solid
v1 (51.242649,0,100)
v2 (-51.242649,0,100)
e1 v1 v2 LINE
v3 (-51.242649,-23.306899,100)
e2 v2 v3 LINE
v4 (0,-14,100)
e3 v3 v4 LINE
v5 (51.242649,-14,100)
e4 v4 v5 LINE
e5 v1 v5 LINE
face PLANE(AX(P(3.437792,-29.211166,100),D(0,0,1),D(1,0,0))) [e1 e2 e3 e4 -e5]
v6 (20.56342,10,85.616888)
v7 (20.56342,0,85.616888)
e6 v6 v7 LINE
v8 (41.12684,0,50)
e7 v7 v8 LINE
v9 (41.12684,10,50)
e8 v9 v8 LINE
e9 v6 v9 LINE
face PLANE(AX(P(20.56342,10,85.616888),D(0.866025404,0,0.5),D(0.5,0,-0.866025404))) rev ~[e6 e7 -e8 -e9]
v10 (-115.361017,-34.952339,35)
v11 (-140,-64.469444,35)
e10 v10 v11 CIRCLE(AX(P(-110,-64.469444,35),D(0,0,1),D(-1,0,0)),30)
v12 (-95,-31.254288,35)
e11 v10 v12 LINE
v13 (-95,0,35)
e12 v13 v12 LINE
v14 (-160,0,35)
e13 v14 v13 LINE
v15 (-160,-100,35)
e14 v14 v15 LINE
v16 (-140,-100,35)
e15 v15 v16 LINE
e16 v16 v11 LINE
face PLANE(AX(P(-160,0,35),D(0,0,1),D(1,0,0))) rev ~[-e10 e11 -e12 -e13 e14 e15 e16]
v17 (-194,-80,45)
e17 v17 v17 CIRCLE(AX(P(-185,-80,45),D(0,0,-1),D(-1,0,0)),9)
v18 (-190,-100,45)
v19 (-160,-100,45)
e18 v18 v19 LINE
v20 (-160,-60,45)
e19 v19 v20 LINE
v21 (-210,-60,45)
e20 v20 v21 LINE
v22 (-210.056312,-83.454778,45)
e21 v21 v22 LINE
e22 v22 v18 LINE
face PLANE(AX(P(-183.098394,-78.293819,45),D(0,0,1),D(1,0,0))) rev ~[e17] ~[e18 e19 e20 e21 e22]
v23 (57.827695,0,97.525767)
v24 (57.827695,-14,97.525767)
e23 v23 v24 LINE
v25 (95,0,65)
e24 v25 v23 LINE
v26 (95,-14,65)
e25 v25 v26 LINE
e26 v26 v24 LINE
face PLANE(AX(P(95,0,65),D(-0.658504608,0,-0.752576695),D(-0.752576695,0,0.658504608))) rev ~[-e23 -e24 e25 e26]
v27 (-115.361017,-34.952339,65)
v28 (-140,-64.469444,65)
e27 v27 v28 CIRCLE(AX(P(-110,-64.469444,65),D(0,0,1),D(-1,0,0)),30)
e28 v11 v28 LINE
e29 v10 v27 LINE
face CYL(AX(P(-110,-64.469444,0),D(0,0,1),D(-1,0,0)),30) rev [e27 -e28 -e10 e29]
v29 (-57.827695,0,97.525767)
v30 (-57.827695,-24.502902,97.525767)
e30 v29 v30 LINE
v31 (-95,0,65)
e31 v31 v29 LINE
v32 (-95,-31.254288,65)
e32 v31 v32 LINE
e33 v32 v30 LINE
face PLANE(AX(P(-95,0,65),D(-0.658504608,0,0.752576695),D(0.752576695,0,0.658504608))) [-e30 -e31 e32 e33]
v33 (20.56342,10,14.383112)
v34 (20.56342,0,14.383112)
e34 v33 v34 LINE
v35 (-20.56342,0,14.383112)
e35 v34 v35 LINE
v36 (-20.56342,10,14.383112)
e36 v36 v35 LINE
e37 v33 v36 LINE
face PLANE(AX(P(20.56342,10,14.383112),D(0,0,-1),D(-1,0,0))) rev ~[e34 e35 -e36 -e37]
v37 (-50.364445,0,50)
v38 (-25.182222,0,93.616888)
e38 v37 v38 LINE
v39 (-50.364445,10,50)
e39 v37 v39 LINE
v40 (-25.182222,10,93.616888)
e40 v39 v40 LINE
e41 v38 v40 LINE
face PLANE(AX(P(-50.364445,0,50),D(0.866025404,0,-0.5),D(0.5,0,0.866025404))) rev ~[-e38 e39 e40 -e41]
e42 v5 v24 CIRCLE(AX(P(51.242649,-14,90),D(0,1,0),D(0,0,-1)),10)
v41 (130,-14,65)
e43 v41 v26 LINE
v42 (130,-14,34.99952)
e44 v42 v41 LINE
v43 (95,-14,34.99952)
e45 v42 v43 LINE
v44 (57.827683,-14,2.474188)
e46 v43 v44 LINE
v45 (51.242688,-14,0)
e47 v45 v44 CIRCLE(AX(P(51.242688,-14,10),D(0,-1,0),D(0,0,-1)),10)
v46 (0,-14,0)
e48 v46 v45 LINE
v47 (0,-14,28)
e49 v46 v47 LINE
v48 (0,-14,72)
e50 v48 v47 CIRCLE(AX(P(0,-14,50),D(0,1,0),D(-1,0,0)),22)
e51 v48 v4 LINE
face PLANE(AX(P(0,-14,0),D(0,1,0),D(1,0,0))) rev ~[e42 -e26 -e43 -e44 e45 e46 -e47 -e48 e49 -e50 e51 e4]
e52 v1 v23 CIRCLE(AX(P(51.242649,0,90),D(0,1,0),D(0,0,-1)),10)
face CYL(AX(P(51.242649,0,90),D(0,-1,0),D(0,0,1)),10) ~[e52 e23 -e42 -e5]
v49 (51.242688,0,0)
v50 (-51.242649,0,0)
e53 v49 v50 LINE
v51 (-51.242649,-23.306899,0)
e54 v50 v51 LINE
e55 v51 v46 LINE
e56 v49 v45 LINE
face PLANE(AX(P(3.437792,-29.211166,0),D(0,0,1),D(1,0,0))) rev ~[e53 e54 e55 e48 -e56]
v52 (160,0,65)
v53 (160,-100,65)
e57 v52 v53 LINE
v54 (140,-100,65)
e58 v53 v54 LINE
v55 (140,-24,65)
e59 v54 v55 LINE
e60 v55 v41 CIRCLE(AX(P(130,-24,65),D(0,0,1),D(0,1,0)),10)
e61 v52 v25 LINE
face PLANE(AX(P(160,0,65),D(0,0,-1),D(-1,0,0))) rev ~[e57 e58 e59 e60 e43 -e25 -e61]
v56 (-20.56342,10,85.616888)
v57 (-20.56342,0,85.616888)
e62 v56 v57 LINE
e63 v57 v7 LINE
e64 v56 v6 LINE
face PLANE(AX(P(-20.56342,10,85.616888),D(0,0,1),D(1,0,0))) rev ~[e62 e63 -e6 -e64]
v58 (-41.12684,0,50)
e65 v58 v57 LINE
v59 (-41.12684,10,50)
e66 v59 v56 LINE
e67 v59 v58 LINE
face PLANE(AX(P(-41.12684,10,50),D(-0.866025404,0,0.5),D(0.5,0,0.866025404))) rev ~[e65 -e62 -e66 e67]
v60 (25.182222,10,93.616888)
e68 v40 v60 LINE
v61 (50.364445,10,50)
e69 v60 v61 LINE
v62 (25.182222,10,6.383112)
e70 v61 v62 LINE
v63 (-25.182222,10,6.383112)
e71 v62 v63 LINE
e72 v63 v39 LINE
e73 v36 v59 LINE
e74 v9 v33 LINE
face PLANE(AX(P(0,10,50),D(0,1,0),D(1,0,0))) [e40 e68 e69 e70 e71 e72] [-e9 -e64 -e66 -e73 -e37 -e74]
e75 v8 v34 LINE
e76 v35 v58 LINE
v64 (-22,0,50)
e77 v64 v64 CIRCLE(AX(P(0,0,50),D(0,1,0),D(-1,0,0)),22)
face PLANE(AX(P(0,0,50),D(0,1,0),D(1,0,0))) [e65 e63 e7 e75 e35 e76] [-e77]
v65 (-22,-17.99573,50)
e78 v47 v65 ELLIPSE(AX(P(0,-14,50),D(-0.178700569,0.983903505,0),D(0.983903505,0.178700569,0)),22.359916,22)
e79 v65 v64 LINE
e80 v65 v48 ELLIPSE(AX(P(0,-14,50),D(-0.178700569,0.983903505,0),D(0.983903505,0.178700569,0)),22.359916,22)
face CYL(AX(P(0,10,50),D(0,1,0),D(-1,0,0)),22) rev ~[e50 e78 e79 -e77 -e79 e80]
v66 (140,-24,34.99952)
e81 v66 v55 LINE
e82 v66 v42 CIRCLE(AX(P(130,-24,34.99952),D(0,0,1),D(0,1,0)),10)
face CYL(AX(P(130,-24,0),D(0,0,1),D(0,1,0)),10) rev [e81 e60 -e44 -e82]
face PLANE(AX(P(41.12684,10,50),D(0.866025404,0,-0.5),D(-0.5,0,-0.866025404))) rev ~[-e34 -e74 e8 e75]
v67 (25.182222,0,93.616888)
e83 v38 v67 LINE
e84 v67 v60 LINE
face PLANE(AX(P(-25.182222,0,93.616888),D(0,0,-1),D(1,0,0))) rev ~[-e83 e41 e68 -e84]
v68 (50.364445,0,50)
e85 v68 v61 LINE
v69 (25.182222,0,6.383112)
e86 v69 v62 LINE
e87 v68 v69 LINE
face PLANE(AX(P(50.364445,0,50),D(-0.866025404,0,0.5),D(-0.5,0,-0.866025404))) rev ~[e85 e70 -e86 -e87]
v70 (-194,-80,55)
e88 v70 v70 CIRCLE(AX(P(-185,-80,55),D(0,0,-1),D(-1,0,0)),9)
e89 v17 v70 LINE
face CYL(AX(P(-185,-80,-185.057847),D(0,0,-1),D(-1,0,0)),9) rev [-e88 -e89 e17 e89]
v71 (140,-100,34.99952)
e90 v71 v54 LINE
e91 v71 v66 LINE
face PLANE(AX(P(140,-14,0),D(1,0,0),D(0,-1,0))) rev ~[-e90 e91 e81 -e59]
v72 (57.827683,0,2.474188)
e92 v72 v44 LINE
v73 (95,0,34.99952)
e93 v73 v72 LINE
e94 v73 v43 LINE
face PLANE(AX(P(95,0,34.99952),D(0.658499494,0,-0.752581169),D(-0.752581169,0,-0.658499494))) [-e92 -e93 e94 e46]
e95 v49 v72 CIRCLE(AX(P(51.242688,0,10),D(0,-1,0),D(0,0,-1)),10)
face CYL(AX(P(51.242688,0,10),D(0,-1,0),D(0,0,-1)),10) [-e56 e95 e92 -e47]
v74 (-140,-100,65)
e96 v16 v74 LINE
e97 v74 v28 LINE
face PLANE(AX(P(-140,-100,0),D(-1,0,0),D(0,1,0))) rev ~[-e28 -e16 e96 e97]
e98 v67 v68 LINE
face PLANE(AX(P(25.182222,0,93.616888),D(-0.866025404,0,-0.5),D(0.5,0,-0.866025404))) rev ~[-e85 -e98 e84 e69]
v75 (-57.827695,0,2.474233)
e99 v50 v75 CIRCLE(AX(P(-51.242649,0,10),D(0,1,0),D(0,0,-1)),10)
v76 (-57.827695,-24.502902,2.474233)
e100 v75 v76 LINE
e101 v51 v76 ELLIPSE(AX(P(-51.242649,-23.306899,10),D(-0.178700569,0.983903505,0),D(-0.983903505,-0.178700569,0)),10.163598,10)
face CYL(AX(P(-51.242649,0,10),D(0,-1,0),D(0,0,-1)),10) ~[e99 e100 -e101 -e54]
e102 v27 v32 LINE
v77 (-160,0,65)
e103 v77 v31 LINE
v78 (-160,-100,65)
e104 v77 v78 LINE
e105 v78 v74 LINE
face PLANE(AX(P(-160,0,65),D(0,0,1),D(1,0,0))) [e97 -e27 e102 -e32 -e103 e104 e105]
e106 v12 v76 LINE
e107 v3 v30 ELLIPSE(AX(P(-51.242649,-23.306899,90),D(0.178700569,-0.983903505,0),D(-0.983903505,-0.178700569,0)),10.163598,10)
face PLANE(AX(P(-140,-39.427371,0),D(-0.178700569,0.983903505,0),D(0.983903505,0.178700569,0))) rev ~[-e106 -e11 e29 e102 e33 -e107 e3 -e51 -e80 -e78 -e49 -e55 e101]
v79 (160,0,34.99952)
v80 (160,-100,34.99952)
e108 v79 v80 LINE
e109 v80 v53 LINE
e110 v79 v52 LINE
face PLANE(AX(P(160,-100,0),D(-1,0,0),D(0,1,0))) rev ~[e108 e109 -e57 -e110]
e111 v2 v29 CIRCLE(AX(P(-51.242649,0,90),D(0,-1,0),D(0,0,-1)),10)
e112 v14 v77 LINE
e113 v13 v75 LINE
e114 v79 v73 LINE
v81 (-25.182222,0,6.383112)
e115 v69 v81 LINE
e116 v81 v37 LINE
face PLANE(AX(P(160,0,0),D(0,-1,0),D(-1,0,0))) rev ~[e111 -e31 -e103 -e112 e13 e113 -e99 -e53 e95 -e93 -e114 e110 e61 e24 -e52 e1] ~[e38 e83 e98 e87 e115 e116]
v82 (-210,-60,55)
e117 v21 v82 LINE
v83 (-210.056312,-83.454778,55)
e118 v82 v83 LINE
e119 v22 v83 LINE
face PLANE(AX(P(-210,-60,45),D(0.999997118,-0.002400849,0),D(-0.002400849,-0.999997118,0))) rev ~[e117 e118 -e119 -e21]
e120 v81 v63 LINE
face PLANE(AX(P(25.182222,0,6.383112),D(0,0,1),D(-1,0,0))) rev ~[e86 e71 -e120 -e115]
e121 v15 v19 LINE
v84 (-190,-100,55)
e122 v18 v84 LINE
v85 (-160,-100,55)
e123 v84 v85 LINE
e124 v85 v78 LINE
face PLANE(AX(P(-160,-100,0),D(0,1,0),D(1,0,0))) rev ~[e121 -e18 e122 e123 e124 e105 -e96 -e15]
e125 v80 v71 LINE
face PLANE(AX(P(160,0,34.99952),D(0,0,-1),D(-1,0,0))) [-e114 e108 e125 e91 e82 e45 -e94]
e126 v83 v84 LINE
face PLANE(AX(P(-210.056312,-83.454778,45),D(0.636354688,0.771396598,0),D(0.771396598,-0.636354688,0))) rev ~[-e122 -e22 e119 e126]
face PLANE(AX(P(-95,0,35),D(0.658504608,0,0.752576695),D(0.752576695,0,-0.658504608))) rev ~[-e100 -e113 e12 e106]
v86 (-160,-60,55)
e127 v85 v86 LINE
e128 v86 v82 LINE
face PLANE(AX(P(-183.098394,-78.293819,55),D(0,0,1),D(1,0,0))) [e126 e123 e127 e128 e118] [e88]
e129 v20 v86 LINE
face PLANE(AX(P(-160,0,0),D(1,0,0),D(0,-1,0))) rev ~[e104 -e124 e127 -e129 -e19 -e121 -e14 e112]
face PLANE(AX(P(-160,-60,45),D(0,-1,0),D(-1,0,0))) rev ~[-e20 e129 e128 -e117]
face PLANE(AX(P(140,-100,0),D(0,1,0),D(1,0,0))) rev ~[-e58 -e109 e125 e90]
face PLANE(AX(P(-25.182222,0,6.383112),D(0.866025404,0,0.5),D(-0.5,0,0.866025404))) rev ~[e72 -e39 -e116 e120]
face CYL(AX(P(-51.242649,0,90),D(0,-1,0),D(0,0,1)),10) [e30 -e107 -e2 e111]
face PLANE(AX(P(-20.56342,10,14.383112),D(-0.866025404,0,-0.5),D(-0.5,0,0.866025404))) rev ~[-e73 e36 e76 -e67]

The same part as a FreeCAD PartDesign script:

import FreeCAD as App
import Part
import Sketcher

V = App.Vector
Q = App.Units.Quantity


def edges_at(feature, points):
    """Names of the edges that pass closest to the given points."""
    edges = feature.Shape.Edges
    near = lambda p: min(range(len(edges)), key=lambda i: edges[i].distToShape(Part.Vertex(*p))[0])
    return sorted({f"Edge{near(p) + 1}" for p in points})

doc = App.newDocument("Part")
body = doc.addObject("PartDesign::Body", "Body")

sketch1 = body.newObject("Sketcher::SketchObject", "Sketch")
sketch1.AttachmentSupport = (doc.getObject("XY_Plane"), [""])
sketch1.MapMode = "FlatFace"
sketch1.addGeometry([
    Part.LineSegment(V(160, 0, 0), V(-160, 0, 0)),
    Part.LineSegment(V(-160, 0, 0), V(-160, -100, 0)),
    Part.LineSegment(V(-160, -100, 0), V(-140, -100, 0)),
    Part.LineSegment(V(-140, -100, 0), V(-140, -39.427371, 0)),
    Part.LineSegment(V(-140, -39.427371, 0), V(0, -14, 0)),
    Part.LineSegment(V(0, -14, 0), V(140, -14, 0)),
    Part.LineSegment(V(140, -14, 0), V(140, -100, 0)),
    Part.LineSegment(V(140, -100, 0), V(160, -100, 0)),
    Part.LineSegment(V(160, -100, 0), V(160, 0, 0)),
], False)
sketch1.addConstraint([
    Sketcher.Constraint("Coincident", 0, 2, 1, 1),
    Sketcher.Constraint("Coincident", 1, 2, 2, 1),
    Sketcher.Constraint("Coincident", 2, 2, 3, 1),
    Sketcher.Constraint("Coincident", 3, 2, 4, 1),
    Sketcher.Constraint("Coincident", 4, 2, 5, 1),
    Sketcher.Constraint("Coincident", 5, 2, 6, 1),
    Sketcher.Constraint("Coincident", 6, 2, 7, 1),
    Sketcher.Constraint("Coincident", 7, 2, 8, 1),
    Sketcher.Constraint("Coincident", 8, 2, 0, 1),
    Sketcher.Constraint("Horizontal", 0),
    Sketcher.Constraint("Vertical", 1),
    Sketcher.Constraint("Horizontal", 2),
    Sketcher.Constraint("Vertical", 3),
    Sketcher.Constraint("Horizontal", 5),
    Sketcher.Constraint("Vertical", 6),
    Sketcher.Constraint("Horizontal", 7),
    Sketcher.Constraint("Vertical", 8),
    Sketcher.Constraint("Symmetric", 0, 2, 8, 2, -1, 1),
    Sketcher.Constraint("Symmetric", 2, 2, 6, 2, -2),
    Sketcher.Constraint("PointOnObject", 4, 2, -2),
    Sketcher.Constraint("DistanceX", 0, 2, 0, 1, 320.0),
    Sketcher.Constraint("DistanceX", 2, 1, 2, 2, 20.0),
    Sketcher.Constraint("DistanceY", 1, 2, 1, 1, 100.0),
    Sketcher.Constraint("DistanceY", 6, 2, 6, 1, 86.0),
    Sketcher.Constraint("DistanceY", 3, 1, 3, 2, 60.572629),
])
pad1 = body.newObject("PartDesign::Pad", "Pad")
pad1.Profile = sketch1
pad1.Length = 100
doc.recompute()

fillet = body.newObject("PartDesign::Fillet", "Fillet")
fillet.Base = (pad1, edges_at(pad1, [(-140, -39.427, 50)]))
fillet.Radius = 30
doc.recompute()

fillet2 = body.newObject("PartDesign::Fillet", "Fillet001")
fillet2.Base = (fillet, edges_at(fillet, [(140, -14, 50)]))
fillet2.Radius = 10

sketch2 = body.newObject("Sketcher::SketchObject", "Sketch001")
sketch2.AttachmentSupport = (doc.getObject("XZ_Plane"), [""])
sketch2.MapMode = "FlatFace"
sketch2.addGeometry([
    Part.LineSegment(V(-160, 0, 0), V(-160, 35, 0)),
    Part.LineSegment(V(-160, 35, 0), V(-95, 35, 0)),
    Part.LineSegment(V(-95, 35, 0), V(-55, 0, 0)),
    Part.LineSegment(V(-55, 0, 0), V(-160, 0, 0)),
], False)
sketch2.addConstraint([
    Sketcher.Constraint("Coincident", 0, 2, 1, 1),
    Sketcher.Constraint("Coincident", 1, 2, 2, 1),
    Sketcher.Constraint("Coincident", 2, 2, 3, 1),
    Sketcher.Constraint("Coincident", 3, 2, 0, 1),
    Sketcher.Constraint("Vertical", 0),
    Sketcher.Constraint("Horizontal", 1),
    Sketcher.Constraint("Horizontal", 3),
    Sketcher.Constraint("PointOnObject", 2, 2, -1),
    Sketcher.Constraint("DistanceX", 1, 1, 1, 2, 65.0),
    Sketcher.Constraint("DistanceX", 3, 2, 3, 1, 105.0),
    Sketcher.Constraint("DistanceY", 0, 1, 0, 2, 35.0),
    Sketcher.Constraint("DistanceX", 0, 2, -1, 1, 160.0),
])
pocket1 = body.newObject("PartDesign::Pocket", "Pocket")
pocket1.Profile = sketch2
pocket1.Length = 100
pocket1.Reversed = True

sketch3 = body.newObject("Sketcher::SketchObject", "Sketch002")
sketch3.AttachmentSupport = (doc.getObject("XZ_Plane"), [""])
sketch3.MapMode = "FlatFace"
sketch3.addGeometry([
    Part.LineSegment(V(-160, 65, 0), V(-160, 100, 0)),
    Part.LineSegment(V(-160, 100, 0), V(-55, 100, 0)),
    Part.LineSegment(V(-55, 100, 0), V(-95, 65, 0)),
    Part.LineSegment(V(-95, 65, 0), V(-160, 65, 0)),
], False)
sketch3.addConstraint([
    Sketcher.Constraint("Coincident", 0, 2, 1, 1),
    Sketcher.Constraint("Coincident", 1, 2, 2, 1),
    Sketcher.Constraint("Coincident", 2, 2, 3, 1),
    Sketcher.Constraint("Coincident", 3, 2, 0, 1),
    Sketcher.Constraint("Vertical", 0),
    Sketcher.Constraint("Horizontal", 1),
    Sketcher.Constraint("Horizontal", 3),
    Sketcher.Constraint("DistanceX", 1, 1, 1, 2, 105.0),
    Sketcher.Constraint("DistanceX", 3, 2, 3, 1, 65.0),
    Sketcher.Constraint("DistanceY", 0, 1, 0, 2, 35.0),
    Sketcher.Constraint("DistanceX", 0, 2, -1, 1, 160.0),
    Sketcher.Constraint("DistanceY", -1, 1, 0, 2, 100.0),
])
pocket2 = body.newObject("PartDesign::Pocket", "Pocket001")
pocket2.Profile = sketch3
pocket2.Length = 100
pocket2.Reversed = True

sketch4 = body.newObject("Sketcher::SketchObject", "Sketch003")
sketch4.AttachmentSupport = (doc.getObject("XZ_Plane"), [""])
sketch4.MapMode = "FlatFace"
sketch4.addGeometry([
    Part.LineSegment(V(160, 34.99952, 0), V(160, 0, 0)),
    Part.LineSegment(V(160, 0, 0), V(55, 0, 0)),
    Part.LineSegment(V(55, 0, 0), V(95, 34.99952, 0)),
    Part.LineSegment(V(95, 34.99952, 0), V(160, 34.99952, 0)),
], False)
sketch4.addConstraint([
    Sketcher.Constraint("Coincident", 0, 2, 1, 1),
    Sketcher.Constraint("Coincident", 1, 2, 2, 1),
    Sketcher.Constraint("Coincident", 2, 2, 3, 1),
    Sketcher.Constraint("Coincident", 3, 2, 0, 1),
    Sketcher.Constraint("Vertical", 0),
    Sketcher.Constraint("Horizontal", 1),
    Sketcher.Constraint("Horizontal", 3),
    Sketcher.Constraint("PointOnObject", 0, 2, -1),
    Sketcher.Constraint("DistanceX", 1, 2, 1, 1, 105.0),
    Sketcher.Constraint("DistanceX", 3, 1, 3, 2, 65.0),
    Sketcher.Constraint("DistanceX", -1, 1, 0, 2, 160.0),
    Sketcher.Constraint("DistanceY", 0, 2, 0, 1, 34.99952),
])
pocket3 = body.newObject("PartDesign::Pocket", "Pocket002")
pocket3.Profile = sketch4
pocket3.Length = 100
pocket3.Reversed = True

sketch5 = body.newObject("Sketcher::SketchObject", "Sketch004")
sketch5.AttachmentSupport = (doc.getObject("XZ_Plane"), [""])
sketch5.MapMode = "FlatFace"
sketch5.addGeometry([
    Part.LineSegment(V(160, 100, 0), V(160, 65, 0)),
    Part.LineSegment(V(160, 65, 0), V(95, 65, 0)),
    Part.LineSegment(V(95, 65, 0), V(55, 100, 0)),
    Part.LineSegment(V(55, 100, 0), V(160, 100, 0)),
], False)
sketch5.addConstraint([
    Sketcher.Constraint("Coincident", 0, 2, 1, 1),
    Sketcher.Constraint("Coincident", 1, 2, 2, 1),
    Sketcher.Constraint("Coincident", 2, 2, 3, 1),
    Sketcher.Constraint("Coincident", 3, 2, 0, 1),
    Sketcher.Constraint("Vertical", 0),
    Sketcher.Constraint("Horizontal", 1),
    Sketcher.Constraint("Horizontal", 3),
    Sketcher.Constraint("DistanceX", 1, 2, 1, 1, 65.0),
    Sketcher.Constraint("DistanceX", 3, 1, 3, 2, 105.0),
    Sketcher.Constraint("DistanceY", 0, 2, 0, 1, 35.0),
    Sketcher.Constraint("DistanceX", -1, 1, 0, 2, 160.0),
    Sketcher.Constraint("DistanceY", -1, 1, 0, 2, 65.0),
])
pocket4 = body.newObject("PartDesign::Pocket", "Pocket003")
pocket4.Profile = sketch5
pocket4.Length = 100
pocket4.Reversed = True
doc.recompute()

fillet3 = body.newObject("PartDesign::Fillet", "Fillet002")
fillet3.Base = (pocket4, edges_at(pocket4, [
    (55, -7, 100),
    (-55, -11.995, 0),
    (-55, -11.995, 100),
    (55, -7, 0),
]))
fillet3.Radius = 10

sketch6 = body.newObject("Sketcher::SketchObject", "Sketch005")
sketch6.AttachmentSupport = (doc.getObject("XZ_Plane"), [""])
sketch6.MapMode = "FlatFace"
sketch6.addGeometry(Part.Circle(V(0, 50, 0), V(0, 0, 1), 22), False)
sketch6.addConstraint([
    Sketcher.Constraint("PointOnObject", 0, 3, -2),
    Sketcher.Constraint("Diameter", 0, 44.0),
    Sketcher.Constraint("DistanceY", -1, 1, 0, 3, 50.0),
])
pocket5 = body.newObject("PartDesign::Pocket", "Pocket004")
pocket5.Profile = sketch6
pocket5.Length = 100
pocket5.Reversed = True

sketch7 = body.newObject("Sketcher::SketchObject", "Sketch006")
sketch7.AttachmentSupport = (doc.getObject("XZ_Plane"), [""])
sketch7.MapMode = "FlatFace"
sketch7.addGeometry([
    Part.LineSegment(V(-25.182222, 6.383112, 0), V(-50.364445, 50, 0)),
    Part.LineSegment(V(-50.364445, 50, 0), V(-25.182222, 93.616888, 0)),
    Part.LineSegment(V(-25.182222, 93.616888, 0), V(25.182222, 93.616888, 0)),
    Part.LineSegment(V(25.182222, 93.616888, 0), V(50.364445, 50, 0)),
    Part.LineSegment(V(50.364445, 50, 0), V(25.182222, 6.383112, 0)),
    Part.LineSegment(V(25.182222, 6.383112, 0), V(-25.182222, 6.383112, 0)),
], False)
sketch7.addConstraint([
    Sketcher.Constraint("Coincident", 0, 2, 1, 1),
    Sketcher.Constraint("Coincident", 1, 2, 2, 1),
    Sketcher.Constraint("Coincident", 2, 2, 3, 1),
    Sketcher.Constraint("Coincident", 3, 2, 4, 1),
    Sketcher.Constraint("Coincident", 4, 2, 5, 1),
    Sketcher.Constraint("Coincident", 5, 2, 0, 1),
    Sketcher.Constraint("Horizontal", 2),
    Sketcher.Constraint("Horizontal", 5),
    Sketcher.Constraint("Symmetric", 0, 2, 3, 2, -2),
    Sketcher.Constraint("Parallel", 0, 3),
    Sketcher.Constraint("Parallel", 1, 4),
    Sketcher.Constraint("Vertical", 2, 2, 4, 2),
    Sketcher.Constraint("Vertical", 1, 2, 5, 2),
    Sketcher.Constraint("Angle", 0, Q("120 deg")),
    Sketcher.Constraint("DistanceY", -1, 1, 0, 2, 50.0),
    Sketcher.Constraint("DistanceX", 2, 1, 2, 2, 50.364445),
    Sketcher.Constraint("DistanceY", -1, 1, 1, 2, 93.616888),
])
pad2 = body.newObject("PartDesign::Pad", "Pad001")
pad2.Profile = sketch7
pad2.Length = 10
pad2.Reversed = True

sketch8 = body.newObject("Sketcher::SketchObject", "Sketch007")
sketch8.AttachmentSupport = (doc.getObject("XZ_Plane"), [""])
sketch8.MapMode = "FlatFace"
sketch8.AttachmentOffset = App.Placement(V(0, 0, -10), App.Rotation())
sketch8.addGeometry(Part.Circle(V(0, 50, 0), V(0, 0, 1), 22), False)
sketch8.addConstraint([
    Sketcher.Constraint("PointOnObject", 0, 3, -2),
    Sketcher.Constraint("Diameter", 0, 44.0),
    Sketcher.Constraint("DistanceY", -1, 1, 0, 3, 50.0),
])
pocket6 = body.newObject("PartDesign::Pocket", "Pocket005")
pocket6.Profile = sketch8
pocket6.Length = 10
pocket6.Reversed = True

sketch9 = body.newObject("Sketcher::SketchObject", "Sketch008")
sketch9.AttachmentSupport = (doc.getObject("XZ_Plane"), [""])
sketch9.MapMode = "FlatFace"
sketch9.AttachmentOffset = App.Placement(V(0, 0, -10), App.Rotation())
sketch9.addGeometry([
    Part.LineSegment(V(41.12684, 50, 0), V(20.56342, 14.383112, 0)),
    Part.LineSegment(V(20.56342, 14.383112, 0), V(-20.56342, 14.383112, 0)),
    Part.LineSegment(V(-20.56342, 14.383112, 0), V(-41.12684, 50, 0)),
    Part.LineSegment(V(-41.12684, 50, 0), V(-20.56342, 85.616888, 0)),
    Part.LineSegment(V(-20.56342, 85.616888, 0), V(20.56342, 85.616888, 0)),
    Part.LineSegment(V(20.56342, 85.616888, 0), V(41.12684, 50, 0)),
], False)
sketch9.addConstraint([
    Sketcher.Constraint("Coincident", 0, 2, 1, 1),
    Sketcher.Constraint("Coincident", 1, 2, 2, 1),
    Sketcher.Constraint("Coincident", 2, 2, 3, 1),
    Sketcher.Constraint("Coincident", 3, 2, 4, 1),
    Sketcher.Constraint("Coincident", 4, 2, 5, 1),
    Sketcher.Constraint("Coincident", 5, 2, 0, 1),
    Sketcher.Constraint("Horizontal", 1),
    Sketcher.Constraint("Horizontal", 4),
    Sketcher.Constraint("Symmetric", 2, 2, 5, 2, -2),
    Sketcher.Constraint("Parallel", 0, 3),
    Sketcher.Constraint("Parallel", 2, 5),
    Sketcher.Constraint("Vertical", 1, 2, 3, 2),
    Sketcher.Constraint("Vertical", 0, 2, 4, 2),
    Sketcher.Constraint("Angle", 0, Q("-120 deg")),
    Sketcher.Constraint("DistanceY", -1, 1, 2, 2, 50.0),
    Sketcher.Constraint("DistanceX", 1, 2, 1, 1, 41.12684),
    Sketcher.Constraint("Distance", 0, 41.12684),
])
pocket7 = body.newObject("PartDesign::Pocket", "Pocket006")
pocket7.Profile = sketch9
pocket7.Length = 10
pocket7.Reversed = True

sketch10 = body.newObject("Sketcher::SketchObject", "Sketch009")
sketch10.AttachmentSupport = (doc.getObject("XY_Plane"), [""])
sketch10.MapMode = "FlatFace"
sketch10.AttachmentOffset = App.Placement(V(0, 0, 50), App.Rotation())
sketch10.addGeometry([
    Part.LineSegment(V(-160, -100, 0), V(-160, -60, 0)),
    Part.LineSegment(V(-160, -60, 0), V(-210, -60, 0)),
    Part.LineSegment(V(-210, -60, 0), V(-210.056312, -83.454778, 0)),
    Part.LineSegment(V(-210.056312, -83.454778, 0), V(-190, -100, 0)),
    Part.LineSegment(V(-190, -100, 0), V(-160, -100, 0)),
], False)
sketch10.addConstraint([
    Sketcher.Constraint("Coincident", 0, 2, 1, 1),
    Sketcher.Constraint("Coincident", 1, 2, 2, 1),
    Sketcher.Constraint("Coincident", 2, 2, 3, 1),
    Sketcher.Constraint("Coincident", 3, 2, 4, 1),
    Sketcher.Constraint("Coincident", 4, 2, 0, 1),
    Sketcher.Constraint("Vertical", 0),
    Sketcher.Constraint("Horizontal", 1),
    Sketcher.Constraint("Horizontal", 4),
    Sketcher.Constraint("DistanceX", 1, 2, 1, 1, 50.0),
    Sketcher.Constraint("DistanceX", 4, 1, 4, 2, 30.0),
    Sketcher.Constraint("DistanceY", 0, 1, 0, 2, 40.0),
    Sketcher.Constraint("Distance", 3, 26.0),
    Sketcher.Constraint("DistanceX", 0, 2, -1, 1, 160.0),
    Sketcher.Constraint("DistanceY", 0, 2, -1, 1, 60.0),
    Sketcher.Constraint("DistanceX", 2, 2, -1, 1, 210.056312),
])
pad3 = body.newObject("PartDesign::Pad", "Pad002")
pad3.Profile = sketch10
pad3.Type = "TwoLengths"
pad3.Length = 5
pad3.Length2 = 5

sketch11 = body.newObject("Sketcher::SketchObject", "Sketch010")
sketch11.AttachmentSupport = (doc.getObject("XY_Plane"), [""])
sketch11.MapMode = "FlatFace"
sketch11.AttachmentOffset = App.Placement(V(0, 0, 55), App.Rotation())
sketch11.addGeometry(Part.Circle(V(-185, -80, 0), V(0, 0, 1), 9), False)
sketch11.addConstraint([
    Sketcher.Constraint("Diameter", 0, 18.0),
    Sketcher.Constraint("DistanceX", 0, 3, -1, 1, 185.0),
    Sketcher.Constraint("DistanceY", 0, 3, -1, 1, 80.0),
])
pocket8 = body.newObject("PartDesign::Pocket", "Pocket007")
pocket8.Profile = sketch11
pocket8.Type = "ThroughAll"
pocket8.Midplane = True

doc.recompute()
